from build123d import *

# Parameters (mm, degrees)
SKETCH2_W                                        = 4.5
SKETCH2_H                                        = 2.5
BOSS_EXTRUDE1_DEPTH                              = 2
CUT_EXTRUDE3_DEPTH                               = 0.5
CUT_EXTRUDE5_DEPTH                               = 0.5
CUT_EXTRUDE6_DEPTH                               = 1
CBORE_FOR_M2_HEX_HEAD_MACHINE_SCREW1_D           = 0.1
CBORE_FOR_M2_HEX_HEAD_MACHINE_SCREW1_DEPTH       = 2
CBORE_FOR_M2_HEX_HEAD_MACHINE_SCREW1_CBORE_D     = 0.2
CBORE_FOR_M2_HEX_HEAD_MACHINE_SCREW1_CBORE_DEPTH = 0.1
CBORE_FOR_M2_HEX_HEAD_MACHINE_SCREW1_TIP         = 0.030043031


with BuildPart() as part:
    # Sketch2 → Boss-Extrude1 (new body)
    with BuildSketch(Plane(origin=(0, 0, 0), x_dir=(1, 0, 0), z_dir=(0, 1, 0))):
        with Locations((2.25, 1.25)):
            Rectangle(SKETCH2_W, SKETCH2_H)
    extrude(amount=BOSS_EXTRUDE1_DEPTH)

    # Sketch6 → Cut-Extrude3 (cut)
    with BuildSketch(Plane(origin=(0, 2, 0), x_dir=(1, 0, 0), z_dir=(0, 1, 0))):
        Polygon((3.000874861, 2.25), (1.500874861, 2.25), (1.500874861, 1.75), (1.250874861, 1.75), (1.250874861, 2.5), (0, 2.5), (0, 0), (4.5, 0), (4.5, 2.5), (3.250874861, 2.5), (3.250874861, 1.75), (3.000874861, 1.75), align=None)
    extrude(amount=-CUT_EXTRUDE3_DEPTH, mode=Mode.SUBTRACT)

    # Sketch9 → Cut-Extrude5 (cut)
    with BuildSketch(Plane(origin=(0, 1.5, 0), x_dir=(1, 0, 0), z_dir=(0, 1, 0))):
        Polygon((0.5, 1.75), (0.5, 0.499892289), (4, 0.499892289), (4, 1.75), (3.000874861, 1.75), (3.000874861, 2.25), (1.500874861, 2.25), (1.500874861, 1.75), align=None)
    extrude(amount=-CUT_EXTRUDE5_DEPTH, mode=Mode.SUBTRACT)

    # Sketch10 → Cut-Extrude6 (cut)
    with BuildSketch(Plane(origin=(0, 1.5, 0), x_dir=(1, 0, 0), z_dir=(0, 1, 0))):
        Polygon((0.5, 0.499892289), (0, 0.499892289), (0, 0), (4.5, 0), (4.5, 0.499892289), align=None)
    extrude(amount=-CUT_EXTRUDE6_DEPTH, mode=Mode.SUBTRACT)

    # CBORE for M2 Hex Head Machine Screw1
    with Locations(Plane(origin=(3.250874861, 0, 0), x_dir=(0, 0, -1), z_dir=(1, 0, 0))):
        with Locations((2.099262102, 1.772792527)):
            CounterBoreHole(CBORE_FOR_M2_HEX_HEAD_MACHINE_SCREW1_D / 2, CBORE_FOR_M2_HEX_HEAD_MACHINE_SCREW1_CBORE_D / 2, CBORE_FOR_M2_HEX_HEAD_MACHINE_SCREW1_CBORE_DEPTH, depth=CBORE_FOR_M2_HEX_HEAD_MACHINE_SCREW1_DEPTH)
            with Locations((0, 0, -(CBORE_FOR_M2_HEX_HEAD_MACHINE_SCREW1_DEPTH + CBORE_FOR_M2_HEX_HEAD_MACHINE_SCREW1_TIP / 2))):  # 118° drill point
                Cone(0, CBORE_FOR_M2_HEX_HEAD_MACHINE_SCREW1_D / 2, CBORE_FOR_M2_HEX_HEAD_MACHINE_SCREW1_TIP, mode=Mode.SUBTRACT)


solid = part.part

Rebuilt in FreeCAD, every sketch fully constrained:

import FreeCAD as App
import Part
import Sketcher
from FreeCAD import Vector
Q = App.Units.Quantity


def add_polygon(sketch, points):
    """Adds a closed chain of lines whose ends are joined by coincident constraints."""
    first, n = sketch.GeometryCount, len(points)
    for a, b in zip(points, points[1:] + points[:1]):
        sketch.addGeometry(Part.LineSegment(App.Vector(*a, 0), App.Vector(*b, 0)), False)
    for i in range(n):
        sketch.addConstraint(Sketcher.Constraint("Coincident", first + i, 2, first + (i + 1) % n, 1))

doc = App.newDocument("Part")
params = doc.addObject("Spreadsheet::Sheet", "Params")
for row, (alias, value) in enumerate([
    ("sketch1_width", "4.5 mm"),
    ("sketch1_height", "2.5 mm"),
    ("pad1_length", "2 mm"),
    ("sketch2_width", "1.5 mm"),
    ("sketch2_width2", "4.5 mm"),
    ("sketch2_height", "0.5 mm"),
    ("sketch2_height2", "2.5 mm"),
    ("sketch2_height3", "0.75 mm"),
    ("pocket1_length", "0.5 mm"),
    ("sketch3_width", "3.5 mm"),
    ("sketch3_width2", "1.5 mm"),
    ("sketch3_height", "0.5 mm"),
    ("pocket2_length", "0.5 mm"),
    ("sketch4_width", "4.5 mm"),
    ("pocket3_length", "1 mm"),
    ("sketch5_diameter", "0.1 mm"),
    ("hole_diameter", "0.1 mm"),
    ("hole_depth", "2 mm"),
    ("hole_cbore_diameter", "0.2 mm"),
    ("hole_cbore_depth", "0.1 mm"),
], start=1):
    params.set(f"A{row}", alias)
    params.set(f"B{row}", "=" + value)
    params.setAlias(f"B{row}", alias)

body = doc.addObject("PartDesign::Body", "Body")

# Sketch on XZ plane
sketch1 = body.newObject("Sketcher::SketchObject", "Sketch")
sketch1.AttachmentSupport = (doc.getObject("XZ_Plane"), [""])
sketch1.MapMode = "FlatFace"
add_polygon(sketch1, [(0, -2.5), (0, 0), (4.5, 0), (4.5, -2.5)])  # lines 0-3
sketch1.addConstraint(Sketcher.Constraint("Vertical", 0))
sketch1.addConstraint(Sketcher.Constraint("Horizontal", 1))
sketch1.addConstraint(Sketcher.Constraint("Vertical", 2))
sketch1.addConstraint(Sketcher.Constraint("Horizontal", 3))
sketch1.addConstraint(Sketcher.Constraint("Coincident", 0, 2, -1, 1))
sketch1.addConstraint(Sketcher.Constraint("DistanceX", 1, 1, 1, 2, Q("4.5 mm")))
sketch1.addConstraint(Sketcher.Constraint("DistanceY", 0, 1, 0, 2, Q("2.5 mm")))
sketch1.setExpression("Constraints[9]", "Params.sketch1_width")
sketch1.setExpression("Constraints[10]", "Params.sketch1_height")
pad1 = body.newObject("PartDesign::Pad", "Pad")
pad1.Profile = sketch1
pad1.setExpression("Length", "Params.pad1_length")
pad1.Reversed = True

# Sketch on XZ plane
sketch2 = body.newObject("Sketcher::SketchObject", "Sketch001")
sketch2.AttachmentSupport = (doc.getObject("XZ_Plane"), [""])
sketch2.MapMode = "FlatFace"
sketch2.AttachmentOffset = App.Placement(Vector(0, 0, -2), App.Rotation())
add_polygon(sketch2, [(3.000875, -2.25), (1.500875, -2.25), (1.500875, -1.75), (1.250875, -1.75), (1.250875, -2.5), (0, -2.5), (0, 0), (4.5, 0), (4.5, -2.5), (3.250875, -2.5), (3.250875, -1.75), (3.000875, -1.75)])  # lines 0-11
sketch2.addConstraint(Sketcher.Constraint("Horizontal", 0))
sketch2.addConstraint(Sketcher.Constraint("Vertical", 1))
sketch2.addConstraint(Sketcher.Constraint("Horizontal", 2))
sketch2.addConstraint(Sketcher.Constraint("Vertical", 3))
sketch2.addConstraint(Sketcher.Constraint("Horizontal", 4))
sketch2.addConstraint(Sketcher.Constraint("Vertical", 5))
sketch2.addConstraint(Sketcher.Constraint("Horizontal", 6))
sketch2.addConstraint(Sketcher.Constraint("Vertical", 7))
sketch2.addConstraint(Sketcher.Constraint("Horizontal", 8))
sketch2.addConstraint(Sketcher.Constraint("Vertical", 9))
sketch2.addConstraint(Sketcher.Constraint("Horizontal", 10))
sketch2.addConstraint(Sketcher.Constraint("Vertical", 11))
sketch2.addConstraint(Sketcher.Constraint("Coincident", 5, 2, -1, 1))
sketch2.addConstraint(Sketcher.Constraint("Horizontal", 4, 2, 7, 2))
sketch2.addConstraint(Sketcher.Constraint("Horizontal", 2, 2, 9, 2))
sketch2.addConstraint(Sketcher.Constraint("Equal", 2, 10))
sketch2.addConstraint(Sketcher.Constraint("DistanceX", 0, 2, 0, 1, Q("1.5 mm")))
sketch2.addConstraint(Sketcher.Constraint("DistanceX", 6, 1, 6, 2, Q("4.5 mm")))
sketch2.addConstraint(Sketcher.Constraint("DistanceY", 1, 1, 1, 2, Q("0.5 mm")))
sketch2.addConstraint(Sketcher.Constraint("DistanceY", 5, 1, 5, 2, Q("2.5 mm")))
sketch2.addConstraint(Sketcher.Constraint("DistanceX", 3, 2, 8, 2, Q("2 mm")))
sketch2.addConstraint(Sketcher.Constraint("DistanceY", 3, 2, 3, 1, Q("0.75 mm")))
sketch2.addConstraint(Sketcher.Constraint("DistanceX", 4, 2, 4, 1, Q("1.250875 mm")))
sketch2.setExpression("Constraints[28]", "Params.sketch2_width")
sketch2.setExpression("Constraints[29]", "Params.sketch2_width2")
sketch2.setExpression("Constraints[30]", "Params.sketch2_height")
sketch2.setExpression("Constraints[31]", "Params.sketch2_height2")
sketch2.setExpression("Constraints[33]", "Params.sketch2_height3")
pocket1 = body.newObject("PartDesign::Pocket", "Pocket")
pocket1.Profile = sketch2
pocket1.setExpression("Length", "Params.pocket1_length")
pocket1.Reversed = True

# Sketch on XZ plane
sketch3 = body.newObject("Sketcher::SketchObject", "Sketch002")
sketch3.AttachmentSupport = (doc.getObject("XZ_Plane"), [""])
sketch3.MapMode = "FlatFace"
sketch3.AttachmentOffset = App.Placement(Vector(0, 0, -1.5), App.Rotation())
add_polygon(sketch3, [(0.5, -1.75), (0.5, -0.499892), (4, -0.499892), (4, -1.75), (3.000875, -1.75), (3.000875, -2.25), (1.500875, -2.25), (1.500875, -1.75)])  # lines 0-7
sketch3.addConstraint(Sketcher.Constraint("Vertical", 0))
sketch3.addConstraint(Sketcher.Constraint("Horizontal", 1))
sketch3.addConstraint(Sketcher.Constraint("Vertical", 2))
sketch3.addConstraint(Sketcher.Constraint("Horizontal", 3))
sketch3.addConstraint(Sketcher.Constraint("Vertical", 4))
sketch3.addConstraint(Sketcher.Constraint("Horizontal", 5))
sketch3.addConstraint(Sketcher.Constraint("Vertical", 6))
sketch3.addConstraint(Sketcher.Constraint("Horizontal", 7))
sketch3.addConstraint(Sketcher.Constraint("Horizontal", 3, 2, 6, 2))
sketch3.addConstraint(Sketcher.Constraint("DistanceX", 1, 1, 1, 2, Q("3.5 mm")))
sketch3.addConstraint(Sketcher.Constraint("DistanceX", 5, 2, 5, 1, Q("1.5 mm")))
sketch3.addConstraint(Sketcher.Constraint("DistanceY", 4, 2, 4, 1, Q("0.5 mm")))
sketch3.addConstraint(Sketcher.Constraint("DistanceX", -1, 1, 1, 2, Q("4 mm")))
sketch3.addConstraint(Sketcher.Constraint("DistanceY", 2, 2, -1, 1, Q("1.75 mm")))
sketch3.addConstraint(Sketcher.Constraint("DistanceX", 3, 2, 3, 1, Q("0.999125 mm")))
sketch3.addConstraint(Sketcher.Constraint("DistanceY", 0, 1, 0, 2, Q("1.250108 mm")))
sketch3.setExpression("Constraints[17]", "Params.sketch3_width")
sketch3.setExpression("Constraints[18]", "Params.sketch3_width2")
sketch3.setExpression("Constraints[19]", "Params.sketch3_height")
pocket2 = body.newObject("PartDesign::Pocket", "Pocket001")
pocket2.Profile = sketch3
pocket2.setExpression("Length", "Params.pocket2_length")
pocket2.Reversed = True

# Sketch on XZ plane
sketch4 = body.newObject("Sketcher::SketchObject", "Sketch003")
sketch4.AttachmentSupport = (doc.getObject("XZ_Plane"), [""])
sketch4.MapMode = "FlatFace"
sketch4.AttachmentOffset = App.Placement(Vector(0, 0, -1.5), App.Rotation())
add_polygon(sketch4, [(0, -0.499892), (0, 0), (4.5, 0), (4.5, -0.499892)])  # lines 0-3
sketch4.addConstraint(Sketcher.Constraint("Vertical", 0))
sketch4.addConstraint(Sketcher.Constraint("Horizontal", 1))
sketch4.addConstraint(Sketcher.Constraint("Vertical", 2))
sketch4.addConstraint(Sketcher.Constraint("Horizontal", 3))
sketch4.addConstraint(Sketcher.Constraint("Coincident", 0, 2, -1, 1))
sketch4.addConstraint(Sketcher.Constraint("DistanceX", 1, 1, 1, 2, Q("4.5 mm")))
sketch4.addConstraint(Sketcher.Constraint("DistanceY", 0, 1, 0, 2, Q("0.499892 mm")))
sketch4.setExpression("Constraints[9]", "Params.sketch4_width")
pocket3 = body.newObject("PartDesign::Pocket", "Pocket002")
pocket3.Profile = sketch4
pocket3.setExpression("Length", "Params.pocket3_length")
pocket3.Reversed = True

# Sketch on YZ plane
sketch5 = body.newObject("Sketcher::SketchObject", "Sketch004")
sketch5.AttachmentSupport = (doc.getObject("YZ_Plane"), [""])
sketch5.MapMode = "FlatFace"
sketch5.AttachmentOffset = App.Placement(Vector(0, 0, 3.250875), App.Rotation())
sketch5.addGeometry(Part.Circle(Vector(1.772793, -2.099262, 0), Vector(0, 0, 1), 0.05), False)
sketch5.addConstraint(Sketcher.Constraint("Diameter", 0, Q("0.1 mm")))
sketch5.addConstraint(Sketcher.Constraint("DistanceX", -1, 1, 0, 3, Q("1.772793 mm")))
sketch5.addConstraint(Sketcher.Constraint("DistanceY", 0, 3, -1, 1, Q("2.099262 mm")))
sketch5.setExpression("Constraints[0]", "Params.sketch5_diameter")
doc.recompute()
hole = body.newObject("PartDesign::Hole", "Hole")
hole.Profile = sketch5
hole.ThreadType = "None"
hole.setExpression("Diameter", "Params.hole_diameter")
hole.DepthType = "Dimension"
hole.setExpression("Depth", "Params.hole_depth")
hole.DrillPoint = "Angled"
hole.DrillPointAngle = 118
hole.HoleCutType = "Counterbore"
hole.setExpression("HoleCutDiameter", "Params.hole_cbore_diameter")
hole.setExpression("HoleCutDepth", "Params.hole_cbore_depth")

doc.recompute()
